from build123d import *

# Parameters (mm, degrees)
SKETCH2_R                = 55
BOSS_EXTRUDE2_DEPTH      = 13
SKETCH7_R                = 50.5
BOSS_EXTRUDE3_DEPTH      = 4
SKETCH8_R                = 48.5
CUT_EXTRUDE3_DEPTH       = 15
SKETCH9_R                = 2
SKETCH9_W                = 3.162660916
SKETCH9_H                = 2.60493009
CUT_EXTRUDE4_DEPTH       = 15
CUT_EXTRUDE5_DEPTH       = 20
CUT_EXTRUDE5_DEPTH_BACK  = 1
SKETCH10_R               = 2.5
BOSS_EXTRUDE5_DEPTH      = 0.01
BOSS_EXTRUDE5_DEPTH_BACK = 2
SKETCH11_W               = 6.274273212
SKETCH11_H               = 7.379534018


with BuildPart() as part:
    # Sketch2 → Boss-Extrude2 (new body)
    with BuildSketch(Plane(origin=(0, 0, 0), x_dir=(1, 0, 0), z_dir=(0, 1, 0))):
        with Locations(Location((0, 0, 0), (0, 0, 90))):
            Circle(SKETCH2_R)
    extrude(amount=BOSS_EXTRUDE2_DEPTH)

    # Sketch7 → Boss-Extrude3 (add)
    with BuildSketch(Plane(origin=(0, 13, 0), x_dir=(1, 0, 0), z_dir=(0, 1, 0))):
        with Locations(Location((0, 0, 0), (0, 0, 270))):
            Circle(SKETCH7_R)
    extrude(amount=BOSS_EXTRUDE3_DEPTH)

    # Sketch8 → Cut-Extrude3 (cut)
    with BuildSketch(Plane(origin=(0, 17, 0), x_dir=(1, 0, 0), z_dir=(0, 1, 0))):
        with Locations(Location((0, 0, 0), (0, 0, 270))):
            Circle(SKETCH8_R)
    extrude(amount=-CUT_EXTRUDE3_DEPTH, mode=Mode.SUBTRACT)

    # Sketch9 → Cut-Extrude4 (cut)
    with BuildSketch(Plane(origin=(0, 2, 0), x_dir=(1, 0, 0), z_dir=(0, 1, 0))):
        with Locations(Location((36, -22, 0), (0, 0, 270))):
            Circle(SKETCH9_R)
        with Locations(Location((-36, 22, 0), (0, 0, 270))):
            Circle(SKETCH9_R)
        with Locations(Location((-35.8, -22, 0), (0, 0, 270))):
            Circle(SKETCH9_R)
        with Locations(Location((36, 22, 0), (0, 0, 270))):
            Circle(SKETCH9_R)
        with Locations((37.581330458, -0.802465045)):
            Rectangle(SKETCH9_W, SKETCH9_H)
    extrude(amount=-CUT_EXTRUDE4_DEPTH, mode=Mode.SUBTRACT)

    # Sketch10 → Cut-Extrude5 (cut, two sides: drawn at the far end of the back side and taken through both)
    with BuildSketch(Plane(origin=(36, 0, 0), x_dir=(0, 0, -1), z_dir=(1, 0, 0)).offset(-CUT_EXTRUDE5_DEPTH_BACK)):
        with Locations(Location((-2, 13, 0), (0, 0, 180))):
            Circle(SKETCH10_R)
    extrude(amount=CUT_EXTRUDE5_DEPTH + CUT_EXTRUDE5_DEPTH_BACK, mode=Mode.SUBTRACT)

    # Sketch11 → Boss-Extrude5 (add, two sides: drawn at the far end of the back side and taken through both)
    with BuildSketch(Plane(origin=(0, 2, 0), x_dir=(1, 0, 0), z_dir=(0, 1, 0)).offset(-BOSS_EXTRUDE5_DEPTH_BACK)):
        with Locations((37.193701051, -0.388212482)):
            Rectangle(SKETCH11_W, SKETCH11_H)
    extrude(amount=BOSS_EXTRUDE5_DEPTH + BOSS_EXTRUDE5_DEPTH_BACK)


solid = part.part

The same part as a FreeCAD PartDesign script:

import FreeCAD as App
import Part
import Sketcher

doc = App.newDocument("Part")
body = doc.addObject("PartDesign::Body", "Body")

# Sketch on XZ plane
sketch1 = doc.addObject("Sketcher::SketchObject", "Sketch")
body.addObject(sketch1)
sketch1.AttachmentSupport = (doc.XZ_Plane, [""])
sketch1.MapMode = "FlatFace"
sketch1.addGeometry(Part.Circle(App.Vector(0, 0, 0), App.Vector(0, 0, 1), 55), False)
sketch1.addConstraint(Sketcher.Constraint("Coincident", 0, 3, -1, 1))
sketch1.addConstraint(Sketcher.Constraint("Diameter", 0, 110.0))
pad1 = doc.addObject("PartDesign::Pad", "Pad")
body.addObject(pad1)
pad1.Profile = sketch1
pad1.Length = 13
pad1.Reversed = True

# Sketch on XZ plane
sketch2 = doc.addObject("Sketcher::SketchObject", "Sketch001")
body.addObject(sketch2)
sketch2.AttachmentSupport = (doc.XZ_Plane, [""])
sketch2.MapMode = "FlatFace"
sketch2.AttachmentOffset = App.Placement(App.Vector(0, 0, -13), App.Rotation())
sketch2.addGeometry(Part.Circle(App.Vector(0, 0, 0), App.Vector(0, 0, 1), 50), False)
sketch2.addConstraint(Sketcher.Constraint("Coincident", 0, 3, -1, 1))
sketch2.addConstraint(Sketcher.Constraint("Diameter", 0, 101.0))
pad2 = doc.addObject("PartDesign::Pad", "Pad001")
body.addObject(pad2)
pad2.Profile = sketch2
pad2.Length = 4
pad2.Reversed = True

# Sketch on XZ plane
sketch3 = doc.addObject("Sketcher::SketchObject", "Sketch002")
body.addObject(sketch3)
sketch3.AttachmentSupport = (doc.XZ_Plane, [""])
sketch3.MapMode = "FlatFace"
sketch3.AttachmentOffset = App.Placement(App.Vector(0, 0, -17), App.Rotation())
sketch3.addGeometry(Part.Circle(App.Vector(0, 0, 0), App.Vector(0, 0, 1), 48), False)
sketch3.addConstraint(Sketcher.Constraint("Coincident", 0, 3, -1, 1))
sketch3.addConstraint(Sketcher.Constraint("Diameter", 0, 97.0))
pocket1 = doc.addObject("PartDesign::Pocket", "Pocket")
body.addObject(pocket1)
pocket1.Profile = sketch3
pocket1.Length = 15
pocket1.Reversed = True

# Sketch on XZ plane
sketch4 = doc.addObject("Sketcher::SketchObject", "Sketch003")
body.addObject(sketch4)
sketch4.AttachmentSupport = (doc.XZ_Plane, [""])
sketch4.MapMode = "FlatFace"
sketch4.AttachmentOffset = App.Placement(App.Vector(0, 0, -2), App.Rotation())
sketch4.addGeometry(Part.Circle(App.Vector(36, 22, 0), App.Vector(0, 0, 1), 2), False)
sketch4.addGeometry(Part.Circle(App.Vector(-36, -22, 0), App.Vector(0, 0, 1), 2), False)
sketch4.addGeometry(Part.Circle(App.Vector(-35.8, 22, 0), App.Vector(0, 0, 1), 2), False)
sketch4.addGeometry(Part.Circle(App.Vector(36, -22, 0), App.Vector(0, 0, 1), 2), False)
sketch4.addGeometry(Part.LineSegment(App.Vector(36, -0.5, 0), App.Vector(36, 2.1, 0)), False)
sketch4.addGeometry(Part.LineSegment(App.Vector(36, 2.1, 0), App.Vector(39.2, 2.1, 0)), False)
sketch4.addGeometry(Part.LineSegment(App.Vector(39.2, 2.1, 0), App.Vector(39.2, -0.5, 0)), False)
sketch4.addGeometry(Part.LineSegment(App.Vector(39.2, -0.5, 0), App.Vector(36, -0.5, 0)), False)
sketch4.addConstraint(Sketcher.Constraint("Coincident", 4, 2, 5, 1))
sketch4.addConstraint(Sketcher.Constraint("Coincident", 5, 2, 6, 1))
sketch4.addConstraint(Sketcher.Constraint("Coincident", 6, 2, 7, 1))
sketch4.addConstraint(Sketcher.Constraint("Coincident", 7, 2, 4, 1))
sketch4.addConstraint(Sketcher.Constraint("Vertical", 4))
sketch4.addConstraint(Sketcher.Constraint("Horizontal", 5))
sketch4.addConstraint(Sketcher.Constraint("Vertical", 6))
sketch4.addConstraint(Sketcher.Constraint("Horizontal", 7))
sketch4.addConstraint(Sketcher.Constraint("Equal", 0, 1))
sketch4.addConstraint(Sketcher.Constraint("Equal", 1, 2))
sketch4.addConstraint(Sketcher.Constraint("Equal", 2, 3))
sketch4.addConstraint(Sketcher.Constraint("Symmetric", 0, 3, 1, 3, -1, 1))
sketch4.addConstraint(Sketcher.Constraint("Symmetric", 1, 3, 3, 3, -2))
sketch4.addConstraint(Sketcher.Constraint("Horizontal", 0, 3, 2, 3))
sketch4.addConstraint(Sketcher.Constraint("Vertical", 3, 3, 4, 2))
sketch4.addConstraint(Sketcher.Constraint("Diameter", 0, 4.0))
sketch4.addConstraint(Sketcher.Constraint("DistanceX", -1, 1, 0, 3, 36.0))
sketch4.addConstraint(Sketcher.Constraint("DistanceY", -1, 1, 0, 3, 22.0))
sketch4.addConstraint(Sketcher.Constraint("DistanceX", 2, 3, -1, 1, 35.8))
sketch4.addConstraint(Sketcher.Constraint("DistanceY", 6, 2, -1, 1, 0.5))
sketch4.addConstraint(Sketcher.Constraint("DistanceX", 5, 1, 5, 2, 3.162661))
sketch4.addConstraint(Sketcher.Constraint("DistanceY", 4, 1, 4, 2, 2.60493))
pocket2 = doc.addObject("PartDesign::Pocket", "Pocket001")
body.addObject(pocket2)
pocket2.Profile = sketch4
pocket2.Length = 15
pocket2.Reversed = True

# Sketch on YZ plane
sketch5 = doc.addObject("Sketcher::SketchObject", "Sketch004")
body.addObject(sketch5)
sketch5.AttachmentSupport = (doc.YZ_Plane, [""])
sketch5.MapMode = "FlatFace"
sketch5.AttachmentOffset = App.Placement(App.Vector(0, 0, 36), App.Rotation())
sketch5.addGeometry(Part.Circle(App.Vector(13, 2, 0), App.Vector(0, 0, 1), 2.5), False)
sketch5.addConstraint(Sketcher.Constraint("Diameter", 0, 5.0))
sketch5.addConstraint(Sketcher.Constraint("DistanceX", -1, 1, 0, 3, 13.0))
sketch5.addConstraint(Sketcher.Constraint("DistanceY", -1, 1, 0, 3, 2.0))
pocket3 = doc.addObject("PartDesign::Pocket", "Pocket002")
body.addObject(pocket3)
pocket3.Profile = sketch5
pocket3.Type = "TwoLengths"
pocket3.Length = 20
pocket3.Length2 = 1
pocket3.Reversed = True

# Sketch on XZ plane
sketch6 = doc.addObject("Sketcher::SketchObject", "Sketch005")
body.addObject(sketch6)
sketch6.AttachmentSupport = (doc.XZ_Plane, [""])
sketch6.MapMode = "FlatFace"
sketch6.AttachmentOffset = App.Placement(App.Vector(0, 0, -2), App.Rotation())
sketch6.addGeometry(Part.LineSegment(App.Vector(34, -3, 0), App.Vector(34, 4, 0)), False)
sketch6.addGeometry(Part.LineSegment(App.Vector(34, 4, 0), App.Vector(40, 4, 0)), False)
sketch6.addGeometry(Part.LineSegment(App.Vector(40, 4, 0), App.Vector(40, -3, 0)), False)
sketch6.addGeometry(Part.LineSegment(App.Vector(40, -3, 0), App.Vector(34, -3, 0)), False)
sketch6.addConstraint(Sketcher.Constraint("Coincident", 0, 2, 1, 1))
sketch6.addConstraint(Sketcher.Constraint("Coincident", 1, 2, 2, 1))
sketch6.addConstraint(Sketcher.Constraint("Coincident", 2, 2, 3, 1))
sketch6.addConstraint(Sketcher.Constraint("Coincident", 3, 2, 0, 1))
sketch6.addConstraint(Sketcher.Constraint("Vertical", 0))
sketch6.addConstraint(Sketcher.Constraint("Horizontal", 1))
sketch6.addConstraint(Sketcher.Constraint("Vertical", 2))
sketch6.addConstraint(Sketcher.Constraint("Horizontal", 3))
sketch6.addConstraint(Sketcher.Constraint("DistanceX", 1, 1, 1, 2, 6.274273))
sketch6.addConstraint(Sketcher.Constraint("DistanceY", 0, 1, 0, 2, 7.379534))
sketch6.addConstraint(Sketcher.Constraint("DistanceY", -1, 1, 0, 2, 4.077979))
sketch6.addConstraint(Sketcher.Constraint("DistanceX", -1, 1, 0, 2, 34.056564))
pad3 = doc.addObject("PartDesign::Pad", "Pad002")
body.addObject(pad3)
pad3.Profile = sketch6
pad3.Type = "TwoLengths"
pad3.Length = 0.01
pad3.Length2 = 2
pad3.Reversed = True

doc.recompute()
